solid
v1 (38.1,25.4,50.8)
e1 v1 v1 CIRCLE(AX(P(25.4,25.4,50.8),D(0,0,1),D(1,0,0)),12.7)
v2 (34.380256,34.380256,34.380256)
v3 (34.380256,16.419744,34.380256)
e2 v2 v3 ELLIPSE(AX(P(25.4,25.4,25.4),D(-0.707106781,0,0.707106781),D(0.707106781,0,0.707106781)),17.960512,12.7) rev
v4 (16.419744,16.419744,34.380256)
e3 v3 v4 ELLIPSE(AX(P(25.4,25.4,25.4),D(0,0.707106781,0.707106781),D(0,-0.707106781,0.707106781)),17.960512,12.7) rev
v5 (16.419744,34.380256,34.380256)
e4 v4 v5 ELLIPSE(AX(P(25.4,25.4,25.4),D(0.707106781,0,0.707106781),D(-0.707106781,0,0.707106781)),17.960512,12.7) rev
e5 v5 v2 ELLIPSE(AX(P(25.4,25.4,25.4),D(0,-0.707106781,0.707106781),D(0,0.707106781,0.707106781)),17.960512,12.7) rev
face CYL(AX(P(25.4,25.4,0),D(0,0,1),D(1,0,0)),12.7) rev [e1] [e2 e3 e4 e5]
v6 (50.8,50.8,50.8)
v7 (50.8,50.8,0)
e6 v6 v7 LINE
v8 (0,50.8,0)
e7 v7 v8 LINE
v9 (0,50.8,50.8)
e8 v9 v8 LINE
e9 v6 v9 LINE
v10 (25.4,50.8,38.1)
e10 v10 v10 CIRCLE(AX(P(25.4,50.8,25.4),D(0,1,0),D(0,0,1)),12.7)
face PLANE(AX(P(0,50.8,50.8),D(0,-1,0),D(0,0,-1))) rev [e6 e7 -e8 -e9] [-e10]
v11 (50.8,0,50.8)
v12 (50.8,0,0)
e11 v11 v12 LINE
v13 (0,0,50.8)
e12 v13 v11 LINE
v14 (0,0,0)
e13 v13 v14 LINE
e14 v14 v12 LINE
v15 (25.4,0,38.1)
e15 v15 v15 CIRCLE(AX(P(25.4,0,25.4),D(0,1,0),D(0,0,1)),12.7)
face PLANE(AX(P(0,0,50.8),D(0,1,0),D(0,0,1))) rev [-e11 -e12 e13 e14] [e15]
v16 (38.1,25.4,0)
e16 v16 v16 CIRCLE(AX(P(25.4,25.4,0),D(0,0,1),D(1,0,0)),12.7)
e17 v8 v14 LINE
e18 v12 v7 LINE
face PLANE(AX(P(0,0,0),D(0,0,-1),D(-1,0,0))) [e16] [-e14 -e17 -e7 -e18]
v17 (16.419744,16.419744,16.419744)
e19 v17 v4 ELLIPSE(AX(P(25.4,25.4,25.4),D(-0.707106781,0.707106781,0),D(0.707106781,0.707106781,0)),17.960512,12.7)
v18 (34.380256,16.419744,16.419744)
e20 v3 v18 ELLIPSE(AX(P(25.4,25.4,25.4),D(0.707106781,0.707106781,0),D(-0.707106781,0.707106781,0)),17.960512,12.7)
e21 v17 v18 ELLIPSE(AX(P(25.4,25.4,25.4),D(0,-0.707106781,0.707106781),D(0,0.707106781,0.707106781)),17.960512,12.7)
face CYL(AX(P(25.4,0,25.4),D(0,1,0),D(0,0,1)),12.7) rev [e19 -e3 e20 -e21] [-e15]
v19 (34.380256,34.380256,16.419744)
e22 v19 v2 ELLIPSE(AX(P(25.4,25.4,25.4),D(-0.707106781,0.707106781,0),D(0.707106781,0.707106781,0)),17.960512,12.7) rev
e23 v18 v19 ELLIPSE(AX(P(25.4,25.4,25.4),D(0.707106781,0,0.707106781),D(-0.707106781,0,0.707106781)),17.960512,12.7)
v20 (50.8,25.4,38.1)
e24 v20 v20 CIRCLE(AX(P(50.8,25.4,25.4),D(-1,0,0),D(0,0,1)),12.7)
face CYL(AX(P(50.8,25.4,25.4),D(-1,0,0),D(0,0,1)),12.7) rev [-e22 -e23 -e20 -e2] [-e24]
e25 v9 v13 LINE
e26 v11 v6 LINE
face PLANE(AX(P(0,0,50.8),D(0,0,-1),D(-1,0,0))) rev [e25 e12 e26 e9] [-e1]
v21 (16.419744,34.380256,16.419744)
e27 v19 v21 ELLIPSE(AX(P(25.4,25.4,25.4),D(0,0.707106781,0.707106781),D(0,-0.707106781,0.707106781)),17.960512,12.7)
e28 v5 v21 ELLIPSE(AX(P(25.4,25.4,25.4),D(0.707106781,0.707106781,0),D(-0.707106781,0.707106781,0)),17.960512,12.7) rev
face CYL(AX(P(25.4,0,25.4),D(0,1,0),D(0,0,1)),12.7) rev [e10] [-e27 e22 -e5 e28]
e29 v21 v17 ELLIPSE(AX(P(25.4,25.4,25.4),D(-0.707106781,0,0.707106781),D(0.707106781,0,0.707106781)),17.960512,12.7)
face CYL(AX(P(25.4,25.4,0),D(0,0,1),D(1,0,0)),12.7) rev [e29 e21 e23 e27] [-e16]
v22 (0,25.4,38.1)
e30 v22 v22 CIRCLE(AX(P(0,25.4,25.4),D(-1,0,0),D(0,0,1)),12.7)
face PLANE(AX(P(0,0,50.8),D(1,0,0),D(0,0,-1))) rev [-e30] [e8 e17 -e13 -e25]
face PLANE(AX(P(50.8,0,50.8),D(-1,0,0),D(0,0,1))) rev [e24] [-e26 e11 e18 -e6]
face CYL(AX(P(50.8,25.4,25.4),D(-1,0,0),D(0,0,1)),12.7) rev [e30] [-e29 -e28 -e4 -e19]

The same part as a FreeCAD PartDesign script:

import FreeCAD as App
import Part
import Sketcher
from FreeCAD import Vector
Q = App.Units.Quantity


def add_polygon(sketch, points):
    """Adds a closed chain of lines whose ends are joined by coincident constraints."""
    first, n = sketch.GeometryCount, len(points)
    for a, b in zip(points, points[1:] + points[:1]):
        sketch.addGeometry(Part.LineSegment(App.Vector(*a, 0), App.Vector(*b, 0)), False)
    for i in range(n):
        sketch.addConstraint(Sketcher.Constraint("Coincident", first + i, 2, first + (i + 1) % n, 1))

doc = App.newDocument("Part")
body = doc.addObject("PartDesign::Body", "Body")

# Sketch on XY plane
sketch1 = doc.addObject("Sketcher::SketchObject", "Sketch")
body.addObject(sketch1)
sketch1.AttachmentSupport = (doc.XY_Plane, [""])
sketch1.MapMode = "FlatFace"
add_polygon(sketch1, [(0, 50.8), (0, 0), (50.8, 0), (50.8, 50.8)])  # lines 0-3
sketch1.addConstraint(Sketcher.Constraint("Vertical", 0))
sketch1.addConstraint(Sketcher.Constraint("Horizontal", 1))
sketch1.addConstraint(Sketcher.Constraint("Vertical", 2))
sketch1.addConstraint(Sketcher.Constraint("Horizontal", 3))
sketch1.addConstraint(Sketcher.Constraint("Coincident", 0, 2, -1, 1))
sketch1.addConstraint(Sketcher.Constraint("Equal", 3, 0))
sketch1.addConstraint(Sketcher.Constraint("DistanceX", 1, 1, 1, 2, Q("2 in")))
pad1 = doc.addObject("PartDesign::Pad", "Pad")
body.addObject(pad1)
pad1.Profile = sketch1
pad1.Length = Q("2 in")

# Sketch on XY plane
sketch2 = doc.addObject("Sketcher::SketchObject", "Sketch001")
body.addObject(sketch2)
sketch2.AttachmentSupport = (doc.XY_Plane, [""])
sketch2.MapMode = "FlatFace"
sketch2.AttachmentOffset = App.Placement(Vector(0, 0, 2 * 25.4), App.Rotation())
sketch2.addGeometry(Part.Circle(Vector(25.4, 25.4, 0), Vector(0, 0, 1), 12.7), False)
sketch2.addConstraint(Sketcher.Constraint("Diameter", 0, Q("1 in")))
sketch2.addConstraint(Sketcher.Constraint("DistanceX", -1, 1, 0, 3, Q("1 in")))
sketch2.addConstraint(Sketcher.Constraint("DistanceY", -1, 1, 0, 3, Q("1 in")))
pocket1 = doc.addObject("PartDesign::Pocket", "Pocket")
body.addObject(pocket1)
pocket1.Profile = sketch2
pocket1.Length = Q("2 in")

# Sketch on XZ plane
sketch3 = doc.addObject("Sketcher::SketchObject", "Sketch002")
body.addObject(sketch3)
sketch3.AttachmentSupport = (doc.XZ_Plane, [""])
sketch3.MapMode = "FlatFace"
sketch3.AttachmentOffset = App.Placement(Vector(0, 0, -2 * 25.4), App.Rotation())
sketch3.addGeometry(Part.Circle(Vector(25.4, 25.4, 0), Vector(0, 0, 1), 12.7), False)
sketch3.addConstraint(Sketcher.Constraint("Diameter", 0, Q("1 in")))
sketch3.addConstraint(Sketcher.Constraint("DistanceX", -1, 1, 0, 3, Q("1 in")))
sketch3.addConstraint(Sketcher.Constraint("DistanceY", -1, 1, 0, 3, Q("1 in")))
pocket2 = doc.addObject("PartDesign::Pocket", "Pocket001")
body.addObject(pocket2)
pocket2.Profile = sketch3
pocket2.Length = Q("2 in")
pocket2.Reversed = True

# Sketch on YZ plane
sketch4 = doc.addObject("Sketcher::SketchObject", "Sketch003")
body.addObject(sketch4)
sketch4.AttachmentSupport = (doc.YZ_Plane, [""])
sketch4.MapMode = "FlatFace"
sketch4.addGeometry(Part.Circle(Vector(25.4, 25.4, 0), Vector(0, 0, 1), 12.7), False)
sketch4.addConstraint(Sketcher.Constraint("Diameter", 0, Q("1 in")))
sketch4.addConstraint(Sketcher.Constraint("DistanceX", -1, 1, 0, 3, Q("1 in")))
sketch4.addConstraint(Sketcher.Constraint("DistanceY", -1, 1, 0, 3, Q("1 in")))
pocket3 = doc.addObject("PartDesign::Pocket", "Pocket002")
body.addObject(pocket3)
pocket3.Profile = sketch4
pocket3.Length = Q("2 in")
pocket3.Reversed = True

doc.recompute()
